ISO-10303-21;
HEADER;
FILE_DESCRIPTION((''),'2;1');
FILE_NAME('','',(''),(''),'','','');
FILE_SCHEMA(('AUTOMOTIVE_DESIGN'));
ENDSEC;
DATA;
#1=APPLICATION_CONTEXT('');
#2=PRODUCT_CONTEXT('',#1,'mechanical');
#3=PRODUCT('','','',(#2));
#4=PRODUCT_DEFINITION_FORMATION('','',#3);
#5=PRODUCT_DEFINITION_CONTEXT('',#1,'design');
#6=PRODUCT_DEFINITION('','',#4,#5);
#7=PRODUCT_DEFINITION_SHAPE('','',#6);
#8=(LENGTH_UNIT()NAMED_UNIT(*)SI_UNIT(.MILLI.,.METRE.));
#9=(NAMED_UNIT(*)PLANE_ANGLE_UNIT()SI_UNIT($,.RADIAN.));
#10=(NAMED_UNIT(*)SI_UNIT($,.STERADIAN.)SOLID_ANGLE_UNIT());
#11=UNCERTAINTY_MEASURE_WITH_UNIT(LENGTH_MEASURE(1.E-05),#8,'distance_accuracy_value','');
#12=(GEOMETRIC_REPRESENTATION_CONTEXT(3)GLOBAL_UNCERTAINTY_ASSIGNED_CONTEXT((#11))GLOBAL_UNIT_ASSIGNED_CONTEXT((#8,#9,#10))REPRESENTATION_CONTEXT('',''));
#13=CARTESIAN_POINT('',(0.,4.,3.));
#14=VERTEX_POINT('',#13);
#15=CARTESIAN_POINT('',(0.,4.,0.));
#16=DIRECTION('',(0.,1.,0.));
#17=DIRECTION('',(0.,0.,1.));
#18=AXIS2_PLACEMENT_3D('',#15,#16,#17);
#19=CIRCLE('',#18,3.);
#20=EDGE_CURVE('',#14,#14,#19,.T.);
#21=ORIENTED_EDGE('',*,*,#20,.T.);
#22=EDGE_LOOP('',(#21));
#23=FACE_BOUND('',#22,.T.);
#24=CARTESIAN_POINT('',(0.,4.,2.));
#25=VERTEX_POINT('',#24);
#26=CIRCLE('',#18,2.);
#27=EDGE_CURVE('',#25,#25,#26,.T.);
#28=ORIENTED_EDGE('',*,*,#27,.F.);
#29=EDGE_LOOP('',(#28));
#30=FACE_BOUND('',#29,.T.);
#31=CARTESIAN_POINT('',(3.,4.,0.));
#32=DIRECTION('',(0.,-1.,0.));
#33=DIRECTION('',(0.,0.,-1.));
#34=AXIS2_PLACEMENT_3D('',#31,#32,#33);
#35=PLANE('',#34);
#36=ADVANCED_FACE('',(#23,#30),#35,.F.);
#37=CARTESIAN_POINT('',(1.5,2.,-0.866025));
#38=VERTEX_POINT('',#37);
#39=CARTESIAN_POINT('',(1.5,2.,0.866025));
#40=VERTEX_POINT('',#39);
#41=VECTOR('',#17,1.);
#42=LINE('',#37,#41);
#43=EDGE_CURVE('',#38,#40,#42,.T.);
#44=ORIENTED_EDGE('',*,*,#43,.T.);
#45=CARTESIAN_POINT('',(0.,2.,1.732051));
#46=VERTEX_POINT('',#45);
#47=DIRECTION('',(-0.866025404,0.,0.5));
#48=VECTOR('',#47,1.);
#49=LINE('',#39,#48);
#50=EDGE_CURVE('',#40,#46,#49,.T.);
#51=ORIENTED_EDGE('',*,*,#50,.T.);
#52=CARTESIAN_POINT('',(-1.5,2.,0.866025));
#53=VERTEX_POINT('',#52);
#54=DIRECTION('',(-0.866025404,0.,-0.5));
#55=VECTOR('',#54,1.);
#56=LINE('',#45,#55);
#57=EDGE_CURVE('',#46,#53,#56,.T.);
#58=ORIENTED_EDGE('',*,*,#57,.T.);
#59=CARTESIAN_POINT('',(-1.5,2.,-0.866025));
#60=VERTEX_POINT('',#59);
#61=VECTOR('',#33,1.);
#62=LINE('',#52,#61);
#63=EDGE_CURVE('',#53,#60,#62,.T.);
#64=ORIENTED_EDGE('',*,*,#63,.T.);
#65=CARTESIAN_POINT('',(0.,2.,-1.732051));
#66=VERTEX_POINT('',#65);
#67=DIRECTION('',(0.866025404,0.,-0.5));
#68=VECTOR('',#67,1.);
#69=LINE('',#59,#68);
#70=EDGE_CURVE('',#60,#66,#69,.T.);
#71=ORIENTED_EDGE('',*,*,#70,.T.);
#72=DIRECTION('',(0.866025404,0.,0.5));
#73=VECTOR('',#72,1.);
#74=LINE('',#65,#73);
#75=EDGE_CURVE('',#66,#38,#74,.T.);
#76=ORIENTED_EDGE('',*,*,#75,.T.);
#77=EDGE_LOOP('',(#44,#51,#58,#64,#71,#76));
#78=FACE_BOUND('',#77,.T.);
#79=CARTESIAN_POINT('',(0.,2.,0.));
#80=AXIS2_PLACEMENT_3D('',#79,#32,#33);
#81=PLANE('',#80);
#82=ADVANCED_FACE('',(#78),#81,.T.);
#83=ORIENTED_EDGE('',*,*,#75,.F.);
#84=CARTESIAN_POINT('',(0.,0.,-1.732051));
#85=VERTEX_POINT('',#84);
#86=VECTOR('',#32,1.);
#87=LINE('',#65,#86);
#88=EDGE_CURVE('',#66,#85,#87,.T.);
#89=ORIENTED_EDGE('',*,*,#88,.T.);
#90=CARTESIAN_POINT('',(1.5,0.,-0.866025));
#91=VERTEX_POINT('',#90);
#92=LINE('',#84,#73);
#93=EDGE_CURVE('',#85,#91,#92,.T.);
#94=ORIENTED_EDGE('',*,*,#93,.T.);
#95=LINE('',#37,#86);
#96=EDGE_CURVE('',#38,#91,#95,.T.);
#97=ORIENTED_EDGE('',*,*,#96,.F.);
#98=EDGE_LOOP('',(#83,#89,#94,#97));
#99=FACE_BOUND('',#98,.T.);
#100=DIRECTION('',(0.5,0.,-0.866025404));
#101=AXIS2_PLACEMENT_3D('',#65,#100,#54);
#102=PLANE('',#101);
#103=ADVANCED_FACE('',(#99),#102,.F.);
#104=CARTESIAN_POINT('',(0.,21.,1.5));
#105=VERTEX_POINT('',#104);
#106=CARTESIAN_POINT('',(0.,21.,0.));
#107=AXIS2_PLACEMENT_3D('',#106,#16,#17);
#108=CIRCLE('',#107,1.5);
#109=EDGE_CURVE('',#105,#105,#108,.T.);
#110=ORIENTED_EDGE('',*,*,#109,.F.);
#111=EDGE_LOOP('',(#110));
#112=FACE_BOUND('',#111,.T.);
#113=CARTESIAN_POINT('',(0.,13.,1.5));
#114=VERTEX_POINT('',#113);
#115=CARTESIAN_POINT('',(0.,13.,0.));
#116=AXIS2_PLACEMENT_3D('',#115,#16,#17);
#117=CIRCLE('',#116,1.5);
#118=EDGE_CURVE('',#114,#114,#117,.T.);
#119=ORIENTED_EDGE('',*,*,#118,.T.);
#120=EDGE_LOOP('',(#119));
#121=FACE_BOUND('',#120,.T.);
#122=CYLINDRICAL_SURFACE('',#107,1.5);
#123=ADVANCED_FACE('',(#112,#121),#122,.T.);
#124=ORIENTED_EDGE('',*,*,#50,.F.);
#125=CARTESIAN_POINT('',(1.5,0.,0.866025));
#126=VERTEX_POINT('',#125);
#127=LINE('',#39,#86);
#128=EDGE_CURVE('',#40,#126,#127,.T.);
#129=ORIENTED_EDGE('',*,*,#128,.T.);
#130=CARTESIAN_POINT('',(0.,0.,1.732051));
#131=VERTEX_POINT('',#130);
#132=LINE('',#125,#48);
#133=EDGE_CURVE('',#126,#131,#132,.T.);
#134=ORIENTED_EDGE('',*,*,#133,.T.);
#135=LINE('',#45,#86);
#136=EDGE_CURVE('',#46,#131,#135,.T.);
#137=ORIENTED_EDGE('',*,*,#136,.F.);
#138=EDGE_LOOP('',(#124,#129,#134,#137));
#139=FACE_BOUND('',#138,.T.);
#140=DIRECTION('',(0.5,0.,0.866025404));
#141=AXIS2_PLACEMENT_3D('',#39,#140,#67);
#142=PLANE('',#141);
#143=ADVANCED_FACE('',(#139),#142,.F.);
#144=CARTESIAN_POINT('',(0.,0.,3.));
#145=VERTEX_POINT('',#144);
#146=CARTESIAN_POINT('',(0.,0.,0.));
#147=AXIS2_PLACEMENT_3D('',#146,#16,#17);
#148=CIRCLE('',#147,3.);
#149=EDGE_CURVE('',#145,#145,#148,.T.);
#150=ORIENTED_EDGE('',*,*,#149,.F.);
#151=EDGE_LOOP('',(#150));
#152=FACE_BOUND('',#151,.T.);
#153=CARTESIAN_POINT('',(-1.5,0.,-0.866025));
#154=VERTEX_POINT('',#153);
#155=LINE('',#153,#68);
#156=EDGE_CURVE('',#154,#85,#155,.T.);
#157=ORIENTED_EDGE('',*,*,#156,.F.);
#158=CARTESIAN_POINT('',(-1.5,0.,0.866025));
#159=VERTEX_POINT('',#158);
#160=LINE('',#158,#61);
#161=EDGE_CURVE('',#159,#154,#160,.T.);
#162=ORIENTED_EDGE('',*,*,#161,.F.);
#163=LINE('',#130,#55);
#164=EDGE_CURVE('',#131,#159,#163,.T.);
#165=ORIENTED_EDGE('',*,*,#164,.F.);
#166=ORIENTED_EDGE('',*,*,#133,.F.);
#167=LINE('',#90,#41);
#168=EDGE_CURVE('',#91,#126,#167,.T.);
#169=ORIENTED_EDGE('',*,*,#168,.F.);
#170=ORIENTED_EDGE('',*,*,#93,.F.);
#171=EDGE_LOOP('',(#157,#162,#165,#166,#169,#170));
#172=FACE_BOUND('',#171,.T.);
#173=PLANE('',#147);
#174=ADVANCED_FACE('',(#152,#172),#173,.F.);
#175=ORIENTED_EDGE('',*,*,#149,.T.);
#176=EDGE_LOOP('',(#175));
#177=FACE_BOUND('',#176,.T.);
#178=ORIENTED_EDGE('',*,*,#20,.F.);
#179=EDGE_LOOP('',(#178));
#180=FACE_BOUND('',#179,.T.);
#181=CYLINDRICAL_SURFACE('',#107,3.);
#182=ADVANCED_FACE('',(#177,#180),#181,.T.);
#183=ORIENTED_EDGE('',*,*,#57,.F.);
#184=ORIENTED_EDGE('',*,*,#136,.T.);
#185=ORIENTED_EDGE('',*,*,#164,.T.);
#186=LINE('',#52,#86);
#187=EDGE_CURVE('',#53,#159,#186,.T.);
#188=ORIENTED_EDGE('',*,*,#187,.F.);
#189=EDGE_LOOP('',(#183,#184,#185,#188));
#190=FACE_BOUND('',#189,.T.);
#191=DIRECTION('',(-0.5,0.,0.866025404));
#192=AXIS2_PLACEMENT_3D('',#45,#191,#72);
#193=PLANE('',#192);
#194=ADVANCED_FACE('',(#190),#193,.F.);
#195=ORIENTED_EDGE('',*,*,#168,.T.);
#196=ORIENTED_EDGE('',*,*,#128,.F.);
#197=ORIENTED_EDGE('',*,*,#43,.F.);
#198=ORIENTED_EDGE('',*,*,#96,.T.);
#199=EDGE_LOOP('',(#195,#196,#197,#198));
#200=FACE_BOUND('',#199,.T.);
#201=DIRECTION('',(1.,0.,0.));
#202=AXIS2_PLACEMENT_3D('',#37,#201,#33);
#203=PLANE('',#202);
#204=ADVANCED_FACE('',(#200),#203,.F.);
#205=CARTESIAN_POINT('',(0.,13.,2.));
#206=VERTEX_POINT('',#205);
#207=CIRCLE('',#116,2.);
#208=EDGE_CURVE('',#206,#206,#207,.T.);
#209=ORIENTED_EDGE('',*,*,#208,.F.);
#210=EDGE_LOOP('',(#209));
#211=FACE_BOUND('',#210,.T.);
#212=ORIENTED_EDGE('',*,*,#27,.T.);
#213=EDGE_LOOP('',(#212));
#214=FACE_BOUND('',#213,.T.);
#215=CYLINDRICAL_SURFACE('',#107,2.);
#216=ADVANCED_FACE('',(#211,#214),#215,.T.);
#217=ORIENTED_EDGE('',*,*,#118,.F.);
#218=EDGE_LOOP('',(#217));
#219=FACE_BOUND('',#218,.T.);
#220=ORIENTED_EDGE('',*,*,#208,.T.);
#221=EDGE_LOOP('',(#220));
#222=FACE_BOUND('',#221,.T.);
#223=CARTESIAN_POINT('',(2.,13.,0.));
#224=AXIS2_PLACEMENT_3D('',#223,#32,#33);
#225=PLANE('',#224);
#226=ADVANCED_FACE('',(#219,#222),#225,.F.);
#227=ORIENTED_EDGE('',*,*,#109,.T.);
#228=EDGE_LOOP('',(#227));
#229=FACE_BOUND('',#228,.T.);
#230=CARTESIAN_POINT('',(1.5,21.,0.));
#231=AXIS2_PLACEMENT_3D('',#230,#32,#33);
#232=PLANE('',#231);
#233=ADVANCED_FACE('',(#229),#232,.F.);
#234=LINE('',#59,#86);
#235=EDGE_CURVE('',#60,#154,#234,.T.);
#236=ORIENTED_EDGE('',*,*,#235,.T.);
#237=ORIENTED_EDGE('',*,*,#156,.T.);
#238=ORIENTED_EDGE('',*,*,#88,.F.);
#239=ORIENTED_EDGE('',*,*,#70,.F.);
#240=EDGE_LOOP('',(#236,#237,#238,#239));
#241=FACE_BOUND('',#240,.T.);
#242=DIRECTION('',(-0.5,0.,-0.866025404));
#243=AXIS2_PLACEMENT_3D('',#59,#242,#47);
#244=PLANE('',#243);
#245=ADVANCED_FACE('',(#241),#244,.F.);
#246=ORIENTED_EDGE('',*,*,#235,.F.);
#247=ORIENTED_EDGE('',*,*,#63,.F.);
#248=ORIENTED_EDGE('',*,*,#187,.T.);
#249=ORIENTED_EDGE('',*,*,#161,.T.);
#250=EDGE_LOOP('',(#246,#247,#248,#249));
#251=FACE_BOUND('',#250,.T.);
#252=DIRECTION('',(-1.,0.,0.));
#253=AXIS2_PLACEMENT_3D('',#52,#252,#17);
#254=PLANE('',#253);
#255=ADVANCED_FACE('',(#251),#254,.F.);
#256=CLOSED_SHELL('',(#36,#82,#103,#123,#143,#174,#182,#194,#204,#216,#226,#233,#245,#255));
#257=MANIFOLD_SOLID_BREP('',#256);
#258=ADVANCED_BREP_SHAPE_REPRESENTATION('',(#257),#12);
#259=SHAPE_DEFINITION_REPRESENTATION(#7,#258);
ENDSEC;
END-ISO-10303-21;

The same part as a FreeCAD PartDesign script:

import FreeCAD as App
import Part
import Sketcher
Q = App.Units.Quantity

doc = App.newDocument("Part")
body = doc.addObject("PartDesign::Body", "Body")

sketch1 = body.newObject("Sketcher::SketchObject", "Sketch")
sketch1.AttachmentSupport = (doc.getObject("XY_Plane"), [""])
sketch1.MapMode = "FlatFace"
sketch1.addGeometry([
    Part.LineSegment(App.Vector(0, 0, 0), App.Vector(3, 0, 0)),
    Part.LineSegment(App.Vector(3, 0, 0), App.Vector(3, 4, 0)),
    Part.LineSegment(App.Vector(3, 4, 0), App.Vector(2, 4, 0)),
    Part.LineSegment(App.Vector(2, 4, 0), App.Vector(2, 13, 0)),
    Part.LineSegment(App.Vector(2, 13, 0), App.Vector(1.5, 13, 0)),
    Part.LineSegment(App.Vector(1.5, 13, 0), App.Vector(1.5, 21, 0)),
    Part.LineSegment(App.Vector(1.5, 21, 0), App.Vector(0, 21, 0)),
    Part.LineSegment(App.Vector(0, 21, 0), App.Vector(0, 0, 0)),
], False)
sketch1.addConstraint([
    Sketcher.Constraint("Coincident", 0, 2, 1, 1),
    Sketcher.Constraint("Coincident", 1, 2, 2, 1),
    Sketcher.Constraint("Coincident", 2, 2, 3, 1),
    Sketcher.Constraint("Coincident", 3, 2, 4, 1),
    Sketcher.Constraint("Coincident", 4, 2, 5, 1),
    Sketcher.Constraint("Coincident", 5, 2, 6, 1),
    Sketcher.Constraint("Coincident", 6, 2, 7, 1),
    Sketcher.Constraint("Coincident", 7, 2, 0, 1),
    Sketcher.Constraint("Horizontal", 0),
    Sketcher.Constraint("Vertical", 1),
    Sketcher.Constraint("Horizontal", 2),
    Sketcher.Constraint("Vertical", 3),
    Sketcher.Constraint("Horizontal", 4),
    Sketcher.Constraint("Vertical", 5),
    Sketcher.Constraint("Horizontal", 6),
    Sketcher.Constraint("Vertical", 7),
    Sketcher.Constraint("Coincident", 7, 2, -1, 1),
    Sketcher.Constraint("DistanceX", 0, 1, 0, 2, 3.0),
    Sketcher.Constraint("DistanceX", 2, 2, 2, 1, 1.0),
    Sketcher.Constraint("DistanceY", 1, 1, 1, 2, 4.0),
    Sketcher.Constraint("DistanceY", 3, 1, 3, 2, 9.0),
    Sketcher.Constraint("DistanceY", 5, 1, 5, 2, 8.0),
    Sketcher.Constraint("DistanceX", 4, 2, 4, 1, 0.5),
])
revolution = body.newObject("PartDesign::Revolution", "Revolution")
revolution.Profile = sketch1
revolution.ReferenceAxis = (sketch1, ["V_Axis"])
revolution.Angle = 360

sketch2 = body.newObject("Sketcher::SketchObject", "Sketch001")
sketch2.AttachmentSupport = (doc.getObject("XZ_Plane"), [""])
sketch2.MapMode = "FlatFace"
sketch2.addGeometry([
    Part.LineSegment(App.Vector(0, -1.732051, 0), App.Vector(1.5, -0.866025, 0)),
    Part.LineSegment(App.Vector(1.5, -0.866025, 0), App.Vector(1.5, 0.866025, 0)),
    Part.LineSegment(App.Vector(1.5, 0.866025, 0), App.Vector(0, 1.732051, 0)),
    Part.LineSegment(App.Vector(0, 1.732051, 0), App.Vector(-1.5, 0.866025, 0)),
    Part.LineSegment(App.Vector(-1.5, 0.866025, 0), App.Vector(-1.5, -0.866025, 0)),
    Part.LineSegment(App.Vector(-1.5, -0.866025, 0), App.Vector(0, -1.732051, 0)),
], False)
sketch2.addConstraint([
    Sketcher.Constraint("Coincident", 0, 2, 1, 1),
    Sketcher.Constraint("Coincident", 1, 2, 2, 1),
    Sketcher.Constraint("Coincident", 2, 2, 3, 1),
    Sketcher.Constraint("Coincident", 3, 2, 4, 1),
    Sketcher.Constraint("Coincident", 4, 2, 5, 1),
    Sketcher.Constraint("Coincident", 5, 2, 0, 1),
    Sketcher.Constraint("Vertical", 1),
    Sketcher.Constraint("Vertical", 4),
    Sketcher.Constraint("Symmetric", 0, 2, 3, 2, -1, 1),
    Sketcher.Constraint("Symmetric", 2, 2, 5, 2, -1, 1),
    Sketcher.Constraint("PointOnObject", 2, 2, -2),
    Sketcher.Constraint("Parallel", 2, 5),
    Sketcher.Constraint("Horizontal", 1, 2, 3, 2),
    Sketcher.Constraint("Angle", 0, Q("30 deg")),
    Sketcher.Constraint("DistanceX", 3, 2, 1, 2, 3.0),
    Sketcher.Constraint("DistanceY", 1, 1, 1, 2, 1.732051),
])
pocket1 = body.newObject("PartDesign::Pocket", "Pocket")
pocket1.Profile = sketch2
pocket1.Length = 2

doc.recompute()
